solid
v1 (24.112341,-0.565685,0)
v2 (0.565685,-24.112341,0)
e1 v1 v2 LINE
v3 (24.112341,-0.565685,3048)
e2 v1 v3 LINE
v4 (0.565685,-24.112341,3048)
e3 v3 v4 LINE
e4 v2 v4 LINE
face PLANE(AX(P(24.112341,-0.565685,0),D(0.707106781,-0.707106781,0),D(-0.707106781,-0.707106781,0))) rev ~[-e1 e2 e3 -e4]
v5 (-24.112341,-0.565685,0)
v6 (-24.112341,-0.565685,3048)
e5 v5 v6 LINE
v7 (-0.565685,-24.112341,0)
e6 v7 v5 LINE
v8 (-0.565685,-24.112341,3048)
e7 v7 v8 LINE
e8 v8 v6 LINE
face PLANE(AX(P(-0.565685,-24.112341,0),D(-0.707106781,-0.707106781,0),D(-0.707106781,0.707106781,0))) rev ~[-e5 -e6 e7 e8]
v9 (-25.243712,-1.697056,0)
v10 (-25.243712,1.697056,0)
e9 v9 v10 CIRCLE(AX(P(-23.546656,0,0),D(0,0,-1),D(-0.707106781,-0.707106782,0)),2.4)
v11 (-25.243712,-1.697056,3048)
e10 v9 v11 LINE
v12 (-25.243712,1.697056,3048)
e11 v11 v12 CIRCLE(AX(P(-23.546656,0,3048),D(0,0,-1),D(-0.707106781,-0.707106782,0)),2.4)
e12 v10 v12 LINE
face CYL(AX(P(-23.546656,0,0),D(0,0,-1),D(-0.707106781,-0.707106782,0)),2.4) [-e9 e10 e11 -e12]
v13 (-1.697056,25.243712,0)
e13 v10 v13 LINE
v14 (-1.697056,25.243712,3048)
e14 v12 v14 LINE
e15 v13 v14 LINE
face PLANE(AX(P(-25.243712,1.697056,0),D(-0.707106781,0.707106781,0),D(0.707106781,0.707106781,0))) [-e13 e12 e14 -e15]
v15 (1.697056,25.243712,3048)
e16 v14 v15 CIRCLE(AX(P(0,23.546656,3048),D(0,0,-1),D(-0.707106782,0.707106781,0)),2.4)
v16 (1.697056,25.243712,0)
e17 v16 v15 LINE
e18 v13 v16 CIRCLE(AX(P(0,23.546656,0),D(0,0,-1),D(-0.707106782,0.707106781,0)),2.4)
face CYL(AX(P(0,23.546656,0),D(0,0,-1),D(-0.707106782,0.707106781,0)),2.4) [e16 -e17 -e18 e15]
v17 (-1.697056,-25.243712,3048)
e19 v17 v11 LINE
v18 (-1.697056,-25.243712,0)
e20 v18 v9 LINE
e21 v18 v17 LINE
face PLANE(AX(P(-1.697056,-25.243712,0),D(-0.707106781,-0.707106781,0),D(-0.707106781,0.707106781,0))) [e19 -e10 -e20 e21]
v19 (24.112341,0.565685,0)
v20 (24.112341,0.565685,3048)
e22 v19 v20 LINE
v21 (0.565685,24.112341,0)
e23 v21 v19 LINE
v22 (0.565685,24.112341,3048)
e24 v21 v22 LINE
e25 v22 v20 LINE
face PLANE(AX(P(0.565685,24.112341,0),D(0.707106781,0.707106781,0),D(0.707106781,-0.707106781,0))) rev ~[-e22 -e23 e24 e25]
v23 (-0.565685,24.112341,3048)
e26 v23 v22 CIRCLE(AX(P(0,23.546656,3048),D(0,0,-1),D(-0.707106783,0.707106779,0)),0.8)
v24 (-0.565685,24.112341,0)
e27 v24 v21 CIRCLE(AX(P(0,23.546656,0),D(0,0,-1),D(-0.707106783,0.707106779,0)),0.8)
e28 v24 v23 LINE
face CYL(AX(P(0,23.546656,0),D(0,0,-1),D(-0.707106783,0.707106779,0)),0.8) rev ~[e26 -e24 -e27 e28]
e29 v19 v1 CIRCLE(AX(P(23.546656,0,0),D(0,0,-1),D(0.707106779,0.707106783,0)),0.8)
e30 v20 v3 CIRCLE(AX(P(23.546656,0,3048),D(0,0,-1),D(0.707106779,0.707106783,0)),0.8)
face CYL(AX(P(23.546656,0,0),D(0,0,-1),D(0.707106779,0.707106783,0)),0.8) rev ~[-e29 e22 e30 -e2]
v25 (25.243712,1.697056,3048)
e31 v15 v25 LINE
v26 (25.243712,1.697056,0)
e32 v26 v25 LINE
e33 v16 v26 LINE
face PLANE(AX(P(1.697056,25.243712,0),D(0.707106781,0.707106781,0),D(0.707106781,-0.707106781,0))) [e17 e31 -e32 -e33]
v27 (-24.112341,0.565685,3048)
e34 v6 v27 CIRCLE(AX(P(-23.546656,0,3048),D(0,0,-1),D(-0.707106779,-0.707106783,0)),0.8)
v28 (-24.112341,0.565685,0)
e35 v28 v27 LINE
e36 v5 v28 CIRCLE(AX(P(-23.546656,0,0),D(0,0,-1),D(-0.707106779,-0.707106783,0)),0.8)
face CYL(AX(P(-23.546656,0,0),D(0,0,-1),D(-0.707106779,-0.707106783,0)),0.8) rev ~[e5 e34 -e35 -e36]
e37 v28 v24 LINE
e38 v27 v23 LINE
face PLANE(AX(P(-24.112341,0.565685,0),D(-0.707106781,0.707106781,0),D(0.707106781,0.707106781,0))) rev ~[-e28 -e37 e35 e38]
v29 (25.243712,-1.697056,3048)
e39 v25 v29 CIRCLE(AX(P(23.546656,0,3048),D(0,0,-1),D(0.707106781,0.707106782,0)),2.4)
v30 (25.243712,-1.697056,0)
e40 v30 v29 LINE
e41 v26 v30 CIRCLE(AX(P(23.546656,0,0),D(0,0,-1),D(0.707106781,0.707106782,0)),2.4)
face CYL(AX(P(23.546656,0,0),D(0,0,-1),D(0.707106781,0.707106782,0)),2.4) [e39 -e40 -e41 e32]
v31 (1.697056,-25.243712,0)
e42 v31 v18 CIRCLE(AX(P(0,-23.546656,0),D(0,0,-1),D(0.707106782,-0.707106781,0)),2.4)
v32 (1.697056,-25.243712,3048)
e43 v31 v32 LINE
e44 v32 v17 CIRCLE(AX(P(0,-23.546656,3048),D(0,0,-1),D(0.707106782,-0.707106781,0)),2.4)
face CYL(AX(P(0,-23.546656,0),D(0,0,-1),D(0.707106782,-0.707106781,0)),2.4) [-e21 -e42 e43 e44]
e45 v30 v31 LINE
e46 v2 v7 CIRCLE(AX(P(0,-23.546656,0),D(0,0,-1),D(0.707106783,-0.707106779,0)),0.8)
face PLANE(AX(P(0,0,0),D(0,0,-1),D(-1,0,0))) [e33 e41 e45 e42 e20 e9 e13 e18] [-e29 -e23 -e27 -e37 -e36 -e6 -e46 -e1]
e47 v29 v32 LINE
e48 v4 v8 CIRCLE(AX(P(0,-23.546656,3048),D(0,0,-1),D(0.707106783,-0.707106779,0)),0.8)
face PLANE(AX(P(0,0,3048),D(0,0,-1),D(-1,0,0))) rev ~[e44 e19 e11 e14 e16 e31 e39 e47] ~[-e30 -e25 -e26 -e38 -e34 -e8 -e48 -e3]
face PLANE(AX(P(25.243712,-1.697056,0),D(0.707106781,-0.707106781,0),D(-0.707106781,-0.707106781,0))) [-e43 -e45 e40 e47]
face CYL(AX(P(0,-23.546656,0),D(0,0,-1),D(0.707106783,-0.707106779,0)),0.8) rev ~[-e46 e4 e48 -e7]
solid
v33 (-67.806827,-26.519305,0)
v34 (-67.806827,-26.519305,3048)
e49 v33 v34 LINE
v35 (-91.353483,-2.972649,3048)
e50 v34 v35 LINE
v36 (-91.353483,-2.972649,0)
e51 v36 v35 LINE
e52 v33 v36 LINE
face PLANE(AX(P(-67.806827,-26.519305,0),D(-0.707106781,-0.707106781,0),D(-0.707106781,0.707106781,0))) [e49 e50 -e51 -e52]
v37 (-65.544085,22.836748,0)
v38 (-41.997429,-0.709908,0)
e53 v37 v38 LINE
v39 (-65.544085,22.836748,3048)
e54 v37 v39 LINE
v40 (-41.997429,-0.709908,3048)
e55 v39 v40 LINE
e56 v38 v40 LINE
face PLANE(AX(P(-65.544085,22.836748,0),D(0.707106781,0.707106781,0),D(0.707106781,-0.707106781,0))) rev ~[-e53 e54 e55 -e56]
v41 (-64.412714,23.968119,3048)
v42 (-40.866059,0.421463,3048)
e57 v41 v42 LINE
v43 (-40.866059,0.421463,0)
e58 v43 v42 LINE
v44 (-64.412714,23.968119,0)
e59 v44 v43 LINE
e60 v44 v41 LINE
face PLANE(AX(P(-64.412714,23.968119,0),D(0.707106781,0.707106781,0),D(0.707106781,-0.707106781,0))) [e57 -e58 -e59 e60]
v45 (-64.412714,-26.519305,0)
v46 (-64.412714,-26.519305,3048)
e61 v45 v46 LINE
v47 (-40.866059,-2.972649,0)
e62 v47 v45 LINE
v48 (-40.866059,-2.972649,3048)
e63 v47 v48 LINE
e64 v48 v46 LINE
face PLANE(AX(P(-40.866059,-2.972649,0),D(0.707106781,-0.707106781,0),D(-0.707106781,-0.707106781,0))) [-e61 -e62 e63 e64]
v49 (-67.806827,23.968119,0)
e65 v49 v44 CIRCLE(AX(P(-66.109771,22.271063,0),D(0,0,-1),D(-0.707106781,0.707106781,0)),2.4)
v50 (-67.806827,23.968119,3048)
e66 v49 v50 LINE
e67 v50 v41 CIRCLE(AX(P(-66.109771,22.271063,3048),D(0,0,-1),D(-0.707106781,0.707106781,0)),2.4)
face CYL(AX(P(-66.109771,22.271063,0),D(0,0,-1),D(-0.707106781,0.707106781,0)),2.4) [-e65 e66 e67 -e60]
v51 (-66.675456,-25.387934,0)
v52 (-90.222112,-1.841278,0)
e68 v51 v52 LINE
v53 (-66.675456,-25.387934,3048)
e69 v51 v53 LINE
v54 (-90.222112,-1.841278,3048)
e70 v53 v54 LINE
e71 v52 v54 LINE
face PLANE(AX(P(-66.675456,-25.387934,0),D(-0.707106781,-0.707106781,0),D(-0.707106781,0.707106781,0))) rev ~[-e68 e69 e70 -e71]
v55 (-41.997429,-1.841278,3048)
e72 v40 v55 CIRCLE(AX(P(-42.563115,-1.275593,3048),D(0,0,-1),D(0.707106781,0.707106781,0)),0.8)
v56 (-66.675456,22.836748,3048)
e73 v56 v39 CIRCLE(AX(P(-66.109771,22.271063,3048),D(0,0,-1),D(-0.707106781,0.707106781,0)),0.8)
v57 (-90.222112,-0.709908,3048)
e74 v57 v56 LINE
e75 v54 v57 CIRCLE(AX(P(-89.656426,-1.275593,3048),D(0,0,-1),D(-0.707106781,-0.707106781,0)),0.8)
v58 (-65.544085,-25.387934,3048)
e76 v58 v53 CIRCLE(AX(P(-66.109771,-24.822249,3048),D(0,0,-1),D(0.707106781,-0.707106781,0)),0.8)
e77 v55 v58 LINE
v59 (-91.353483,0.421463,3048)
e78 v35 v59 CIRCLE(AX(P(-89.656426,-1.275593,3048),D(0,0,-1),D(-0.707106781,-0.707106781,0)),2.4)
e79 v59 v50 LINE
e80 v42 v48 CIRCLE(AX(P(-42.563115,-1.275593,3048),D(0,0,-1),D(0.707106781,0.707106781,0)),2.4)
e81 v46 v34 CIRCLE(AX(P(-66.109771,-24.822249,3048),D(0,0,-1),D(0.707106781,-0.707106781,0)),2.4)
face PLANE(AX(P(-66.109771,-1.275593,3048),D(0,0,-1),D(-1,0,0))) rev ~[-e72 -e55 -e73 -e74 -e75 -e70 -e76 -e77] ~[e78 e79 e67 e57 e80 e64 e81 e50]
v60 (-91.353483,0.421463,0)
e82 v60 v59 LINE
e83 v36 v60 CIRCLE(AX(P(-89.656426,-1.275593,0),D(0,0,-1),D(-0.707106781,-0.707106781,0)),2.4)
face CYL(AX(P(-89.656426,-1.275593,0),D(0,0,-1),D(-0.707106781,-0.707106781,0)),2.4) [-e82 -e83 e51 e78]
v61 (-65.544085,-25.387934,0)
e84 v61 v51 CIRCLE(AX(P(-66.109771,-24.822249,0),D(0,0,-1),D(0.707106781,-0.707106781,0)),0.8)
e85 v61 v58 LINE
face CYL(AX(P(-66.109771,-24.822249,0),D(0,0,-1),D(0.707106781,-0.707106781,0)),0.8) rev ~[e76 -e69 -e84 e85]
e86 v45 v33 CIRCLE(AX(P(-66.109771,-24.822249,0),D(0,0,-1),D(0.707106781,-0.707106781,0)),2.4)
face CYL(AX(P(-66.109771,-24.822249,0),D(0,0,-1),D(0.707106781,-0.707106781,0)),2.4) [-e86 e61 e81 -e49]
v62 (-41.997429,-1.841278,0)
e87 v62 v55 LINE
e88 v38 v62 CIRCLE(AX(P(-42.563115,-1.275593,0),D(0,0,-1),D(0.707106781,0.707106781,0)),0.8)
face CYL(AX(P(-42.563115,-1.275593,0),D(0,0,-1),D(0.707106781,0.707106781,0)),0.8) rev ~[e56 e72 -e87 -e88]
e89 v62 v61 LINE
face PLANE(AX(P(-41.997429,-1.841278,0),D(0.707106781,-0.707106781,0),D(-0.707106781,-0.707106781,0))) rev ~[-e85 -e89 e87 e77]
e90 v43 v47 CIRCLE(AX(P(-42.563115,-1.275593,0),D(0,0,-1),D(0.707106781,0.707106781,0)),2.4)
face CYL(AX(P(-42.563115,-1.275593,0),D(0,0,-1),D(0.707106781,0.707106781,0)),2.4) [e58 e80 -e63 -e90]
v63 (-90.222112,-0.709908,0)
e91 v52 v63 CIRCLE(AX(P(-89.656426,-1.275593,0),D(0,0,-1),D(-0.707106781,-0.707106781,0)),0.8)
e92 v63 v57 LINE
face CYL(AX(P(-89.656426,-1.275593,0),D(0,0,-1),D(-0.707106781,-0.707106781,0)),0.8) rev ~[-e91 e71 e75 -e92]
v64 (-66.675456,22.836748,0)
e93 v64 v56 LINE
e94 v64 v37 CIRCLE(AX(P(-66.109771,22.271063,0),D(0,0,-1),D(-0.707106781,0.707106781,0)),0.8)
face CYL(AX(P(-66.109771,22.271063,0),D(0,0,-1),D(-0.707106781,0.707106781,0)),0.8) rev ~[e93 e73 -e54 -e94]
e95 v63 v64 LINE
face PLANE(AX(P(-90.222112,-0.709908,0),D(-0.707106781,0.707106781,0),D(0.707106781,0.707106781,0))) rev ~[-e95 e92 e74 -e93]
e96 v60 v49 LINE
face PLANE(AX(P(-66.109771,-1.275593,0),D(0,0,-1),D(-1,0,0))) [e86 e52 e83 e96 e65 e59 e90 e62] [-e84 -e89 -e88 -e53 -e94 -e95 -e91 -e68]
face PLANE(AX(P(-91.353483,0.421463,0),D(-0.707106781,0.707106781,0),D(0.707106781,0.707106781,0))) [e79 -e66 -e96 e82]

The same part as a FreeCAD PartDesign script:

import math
import FreeCAD as App
import Part
import Sketcher

doc = App.newDocument("Part")
body = doc.addObject("PartDesign::Body", "Body")

# Sketch on XY plane
sketch1 = doc.addObject("Sketcher::SketchObject", "Sketch")
body.addObject(sketch1)
sketch1.AttachmentSupport = (doc.XY_Plane, [""])
sketch1.MapMode = "FlatFace"
sketch1.addGeometry([
    Part.LineSegment(App.Vector(1.697056, -25.243712, 0), App.Vector(25.243712, -1.697056, 0)),  # 0
    Part.ArcOfCircle(Part.Circle(App.Vector(23.546656, 0, 0), App.Vector(0, 0, 1), 2.4), math.radians(-45), math.radians(45)),  # 1
    Part.LineSegment(App.Vector(25.243712, 1.697056, 0), App.Vector(1.697056, 25.243712, 0)),  # 2
    Part.ArcOfCircle(Part.Circle(App.Vector(0, 23.546656, 0), App.Vector(0, 0, 1), 2.4), math.radians(45), math.radians(135)),  # 3
    Part.LineSegment(App.Vector(-1.697056, 25.243712, 0), App.Vector(-25.243712, 1.697056, 0)),  # 4
    Part.ArcOfCircle(Part.Circle(App.Vector(-23.546656, 0, 0), App.Vector(0, 0, 1), 2.4), math.radians(135), math.radians(225)),  # 5
    Part.LineSegment(App.Vector(-25.243712, -1.697056, 0), App.Vector(-1.697056, -25.243712, 0)),  # 6
    Part.ArcOfCircle(Part.Circle(App.Vector(0, -23.546656, 0), App.Vector(0, 0, 1), 2.4), math.radians(-135), math.radians(-45)),  # 7
    Part.LineSegment(App.Vector(-24.112341, 0.565685, 0), App.Vector(-0.565685, 24.112341, 0)),  # 8
    Part.ArcOfCircle(Part.Circle(App.Vector(0, 23.546656, 0), App.Vector(0, 0, 1), 0.8), math.radians(45), math.radians(135)),  # 9
    Part.LineSegment(App.Vector(0.565685, 24.112341, 0), App.Vector(24.112341, 0.565685, 0)),  # 10
    Part.ArcOfCircle(Part.Circle(App.Vector(23.546656, 0, 0), App.Vector(0, 0, 1), 0.8), math.radians(-45), math.radians(45)),  # 11
    Part.LineSegment(App.Vector(24.112341, -0.565685, 0), App.Vector(0.565685, -24.112341, 0)),  # 12
    Part.ArcOfCircle(Part.Circle(App.Vector(0, -23.546656, 0), App.Vector(0, 0, 1), 0.8), math.radians(-135), math.radians(-45)),  # 13
    Part.LineSegment(App.Vector(-0.565685, -24.112341, 0), App.Vector(-24.112341, -0.565685, 0)),  # 14
    Part.ArcOfCircle(Part.Circle(App.Vector(-23.546656, 0, 0), App.Vector(0, 0, 1), 0.8), math.radians(135), math.radians(225)),  # 15
], False)
sketch1.addConstraint([
    Sketcher.Constraint("Tangent", 0, 2, 1, 1),
    Sketcher.Constraint("Tangent", 1, 2, 2, 1),
    Sketcher.Constraint("Tangent", 2, 2, 3, 1),
    Sketcher.Constraint("Tangent", 3, 2, 4, 1),
    Sketcher.Constraint("Tangent", 4, 2, 5, 1),
    Sketcher.Constraint("Tangent", 5, 2, 6, 1),
    Sketcher.Constraint("Tangent", 6, 2, 7, 1),
    Sketcher.Constraint("Tangent", 7, 2, 0, 1),
    Sketcher.Constraint("Tangent", 8, 2, 9, 2),
    Sketcher.Constraint("Tangent", 9, 1, 10, 1),
    Sketcher.Constraint("Tangent", 10, 2, 11, 2),
    Sketcher.Constraint("Tangent", 11, 1, 12, 1),
    Sketcher.Constraint("Tangent", 12, 2, 13, 2),
    Sketcher.Constraint("Tangent", 13, 1, 14, 1),
    Sketcher.Constraint("Tangent", 14, 2, 15, 2),
    Sketcher.Constraint("Tangent", 15, 1, 8, 1),
    Sketcher.Constraint("Coincident", 9, 3, 3, 3),
    Sketcher.Constraint("Coincident", 11, 3, 1, 3),
    Sketcher.Constraint("Coincident", 13, 3, 7, 3),
    Sketcher.Constraint("Coincident", 15, 3, 5, 3),
    Sketcher.Constraint("Equal", 1, 3),
    Sketcher.Constraint("Equal", 3, 5),
    Sketcher.Constraint("Equal", 5, 7),
    Sketcher.Constraint("Equal", 9, 11),
    Sketcher.Constraint("Equal", 11, 13),
    Sketcher.Constraint("Equal", 13, 15),
    Sketcher.Constraint("Symmetric", 1, 3, 5, 3, -1, 1),
    Sketcher.Constraint("Symmetric", 3, 3, 7, 3, -1, 1),
    Sketcher.Constraint("Symmetric", 2, 2, 3, 2, -2),
    Sketcher.Constraint("Perpendicular", 0, 2),
    Sketcher.Constraint("Radius", 1, 2.4),
    Sketcher.Constraint("Radius", 9, 0.8),
    Sketcher.Constraint("Distance", 0, 33.3),
])
pad1 = doc.addObject("PartDesign::Pad", "Pad")
body.addObject(pad1)
pad1.Profile = sketch1
pad1.Length = 3048
body2 = doc.addObject("PartDesign::Body", "Body001")

# Sketch on XY plane
sketch2 = doc.addObject("Sketcher::SketchObject", "Sketch001")
body2.addObject(sketch2)
sketch2.AttachmentSupport = (doc.getObject("XY_Plane001"), [""])
sketch2.MapMode = "FlatFace"
sketch2.addGeometry([
    Part.LineSegment(App.Vector(-64.412714, -26.519305, 0), App.Vector(-40.866059, -2.972649, 0)),  # 0
    Part.ArcOfCircle(Part.Circle(App.Vector(-42.563115, -1.275593, 0), App.Vector(0, 0, 1), 2.4), math.radians(-45), math.radians(45)),  # 1
    Part.LineSegment(App.Vector(-40.866059, 0.421463, 0), App.Vector(-64.412714, 23.968119, 0)),  # 2
    Part.ArcOfCircle(Part.Circle(App.Vector(-66.109771, 22.271063, 0), App.Vector(0, 0, 1), 2.4), math.radians(45), math.radians(135)),  # 3
    Part.LineSegment(App.Vector(-67.806827, 23.968119, 0), App.Vector(-91.353483, 0.421463, 0)),  # 4
    Part.ArcOfCircle(Part.Circle(App.Vector(-89.656426, -1.275593, 0), App.Vector(0, 0, 1), 2.4), math.radians(135), math.radians(225)),  # 5
    Part.LineSegment(App.Vector(-91.353483, -2.972649, 0), App.Vector(-67.806827, -26.519305, 0)),  # 6
    Part.ArcOfCircle(Part.Circle(App.Vector(-66.109771, -24.822249, 0), App.Vector(0, 0, 1), 2.4), math.radians(-135), math.radians(-45)),  # 7
    Part.LineSegment(App.Vector(-90.222112, -0.709908, 0), App.Vector(-66.675456, 22.836748, 0)),  # 8
    Part.ArcOfCircle(Part.Circle(App.Vector(-66.109771, 22.271063, 0), App.Vector(0, 0, 1), 0.8), math.radians(45), math.radians(135)),  # 9
    Part.LineSegment(App.Vector(-65.544085, 22.836748, 0), App.Vector(-41.997429, -0.709908, 0)),  # 10
    Part.ArcOfCircle(Part.Circle(App.Vector(-42.563115, -1.275593, 0), App.Vector(0, 0, 1), 0.8), math.radians(-45), math.radians(45)),  # 11
    Part.LineSegment(App.Vector(-41.997429, -1.841278, 0), App.Vector(-65.544085, -25.387934, 0)),  # 12
    Part.ArcOfCircle(Part.Circle(App.Vector(-66.109771, -24.822249, 0), App.Vector(0, 0, 1), 0.8), math.radians(-135), math.radians(-45)),  # 13
    Part.LineSegment(App.Vector(-66.675456, -25.387934, 0), App.Vector(-90.222112, -1.841278, 0)),  # 14
    Part.ArcOfCircle(Part.Circle(App.Vector(-89.656426, -1.275593, 0), App.Vector(0, 0, 1), 0.8), math.radians(135), math.radians(225)),  # 15
], False)
sketch2.addConstraint([
    Sketcher.Constraint("Tangent", 0, 2, 1, 1),
    Sketcher.Constraint("Tangent", 1, 2, 2, 1),
    Sketcher.Constraint("Tangent", 2, 2, 3, 1),
    Sketcher.Constraint("Tangent", 3, 2, 4, 1),
    Sketcher.Constraint("Tangent", 4, 2, 5, 1),
    Sketcher.Constraint("Tangent", 5, 2, 6, 1),
    Sketcher.Constraint("Tangent", 6, 2, 7, 1),
    Sketcher.Constraint("Tangent", 7, 2, 0, 1),
    Sketcher.Constraint("Tangent", 8, 2, 9, 2),
    Sketcher.Constraint("Tangent", 9, 1, 10, 1),
    Sketcher.Constraint("Tangent", 10, 2, 11, 2),
    Sketcher.Constraint("Tangent", 11, 1, 12, 1),
    Sketcher.Constraint("Tangent", 12, 2, 13, 2),
    Sketcher.Constraint("Tangent", 13, 1, 14, 1),
    Sketcher.Constraint("Tangent", 14, 2, 15, 2),
    Sketcher.Constraint("Tangent", 15, 1, 8, 1),
    Sketcher.Constraint("Coincident", 9, 3, 3, 3),
    Sketcher.Constraint("Coincident", 11, 3, 1, 3),
    Sketcher.Constraint("Coincident", 13, 3, 7, 3),
    Sketcher.Constraint("Coincident", 15, 3, 5, 3),
    Sketcher.Constraint("Equal", 1, 3),
    Sketcher.Constraint("Equal", 3, 5),
    Sketcher.Constraint("Equal", 5, 7),
    Sketcher.Constraint("Equal", 9, 11),
    Sketcher.Constraint("Equal", 11, 13),
    Sketcher.Constraint("Equal", 13, 15),
    Sketcher.Constraint("Perpendicular", 0, 2),
    Sketcher.Constraint("Perpendicular", 2, 4),
    Sketcher.Constraint("Perpendicular", 4, 6),
    Sketcher.Constraint("Horizontal", 1, 3, 5, 3),
    Sketcher.Constraint("Horizontal", 2, 2, 3, 2),
    Sketcher.Constraint("Radius", 1, 2.4),
    Sketcher.Constraint("Radius", 9, 0.8),
    Sketcher.Constraint("Distance", 0, 33.3),
    Sketcher.Constraint("DistanceX", 3, 3, -1, 1, 66.109771),
    Sketcher.Constraint("DistanceY", 7, 3, -1, 1, 24.822249),
])
pad2 = doc.addObject("PartDesign::Pad", "Pad001")
body2.addObject(pad2)
pad2.Profile = sketch2
pad2.Length = 3048

doc.recompute()
